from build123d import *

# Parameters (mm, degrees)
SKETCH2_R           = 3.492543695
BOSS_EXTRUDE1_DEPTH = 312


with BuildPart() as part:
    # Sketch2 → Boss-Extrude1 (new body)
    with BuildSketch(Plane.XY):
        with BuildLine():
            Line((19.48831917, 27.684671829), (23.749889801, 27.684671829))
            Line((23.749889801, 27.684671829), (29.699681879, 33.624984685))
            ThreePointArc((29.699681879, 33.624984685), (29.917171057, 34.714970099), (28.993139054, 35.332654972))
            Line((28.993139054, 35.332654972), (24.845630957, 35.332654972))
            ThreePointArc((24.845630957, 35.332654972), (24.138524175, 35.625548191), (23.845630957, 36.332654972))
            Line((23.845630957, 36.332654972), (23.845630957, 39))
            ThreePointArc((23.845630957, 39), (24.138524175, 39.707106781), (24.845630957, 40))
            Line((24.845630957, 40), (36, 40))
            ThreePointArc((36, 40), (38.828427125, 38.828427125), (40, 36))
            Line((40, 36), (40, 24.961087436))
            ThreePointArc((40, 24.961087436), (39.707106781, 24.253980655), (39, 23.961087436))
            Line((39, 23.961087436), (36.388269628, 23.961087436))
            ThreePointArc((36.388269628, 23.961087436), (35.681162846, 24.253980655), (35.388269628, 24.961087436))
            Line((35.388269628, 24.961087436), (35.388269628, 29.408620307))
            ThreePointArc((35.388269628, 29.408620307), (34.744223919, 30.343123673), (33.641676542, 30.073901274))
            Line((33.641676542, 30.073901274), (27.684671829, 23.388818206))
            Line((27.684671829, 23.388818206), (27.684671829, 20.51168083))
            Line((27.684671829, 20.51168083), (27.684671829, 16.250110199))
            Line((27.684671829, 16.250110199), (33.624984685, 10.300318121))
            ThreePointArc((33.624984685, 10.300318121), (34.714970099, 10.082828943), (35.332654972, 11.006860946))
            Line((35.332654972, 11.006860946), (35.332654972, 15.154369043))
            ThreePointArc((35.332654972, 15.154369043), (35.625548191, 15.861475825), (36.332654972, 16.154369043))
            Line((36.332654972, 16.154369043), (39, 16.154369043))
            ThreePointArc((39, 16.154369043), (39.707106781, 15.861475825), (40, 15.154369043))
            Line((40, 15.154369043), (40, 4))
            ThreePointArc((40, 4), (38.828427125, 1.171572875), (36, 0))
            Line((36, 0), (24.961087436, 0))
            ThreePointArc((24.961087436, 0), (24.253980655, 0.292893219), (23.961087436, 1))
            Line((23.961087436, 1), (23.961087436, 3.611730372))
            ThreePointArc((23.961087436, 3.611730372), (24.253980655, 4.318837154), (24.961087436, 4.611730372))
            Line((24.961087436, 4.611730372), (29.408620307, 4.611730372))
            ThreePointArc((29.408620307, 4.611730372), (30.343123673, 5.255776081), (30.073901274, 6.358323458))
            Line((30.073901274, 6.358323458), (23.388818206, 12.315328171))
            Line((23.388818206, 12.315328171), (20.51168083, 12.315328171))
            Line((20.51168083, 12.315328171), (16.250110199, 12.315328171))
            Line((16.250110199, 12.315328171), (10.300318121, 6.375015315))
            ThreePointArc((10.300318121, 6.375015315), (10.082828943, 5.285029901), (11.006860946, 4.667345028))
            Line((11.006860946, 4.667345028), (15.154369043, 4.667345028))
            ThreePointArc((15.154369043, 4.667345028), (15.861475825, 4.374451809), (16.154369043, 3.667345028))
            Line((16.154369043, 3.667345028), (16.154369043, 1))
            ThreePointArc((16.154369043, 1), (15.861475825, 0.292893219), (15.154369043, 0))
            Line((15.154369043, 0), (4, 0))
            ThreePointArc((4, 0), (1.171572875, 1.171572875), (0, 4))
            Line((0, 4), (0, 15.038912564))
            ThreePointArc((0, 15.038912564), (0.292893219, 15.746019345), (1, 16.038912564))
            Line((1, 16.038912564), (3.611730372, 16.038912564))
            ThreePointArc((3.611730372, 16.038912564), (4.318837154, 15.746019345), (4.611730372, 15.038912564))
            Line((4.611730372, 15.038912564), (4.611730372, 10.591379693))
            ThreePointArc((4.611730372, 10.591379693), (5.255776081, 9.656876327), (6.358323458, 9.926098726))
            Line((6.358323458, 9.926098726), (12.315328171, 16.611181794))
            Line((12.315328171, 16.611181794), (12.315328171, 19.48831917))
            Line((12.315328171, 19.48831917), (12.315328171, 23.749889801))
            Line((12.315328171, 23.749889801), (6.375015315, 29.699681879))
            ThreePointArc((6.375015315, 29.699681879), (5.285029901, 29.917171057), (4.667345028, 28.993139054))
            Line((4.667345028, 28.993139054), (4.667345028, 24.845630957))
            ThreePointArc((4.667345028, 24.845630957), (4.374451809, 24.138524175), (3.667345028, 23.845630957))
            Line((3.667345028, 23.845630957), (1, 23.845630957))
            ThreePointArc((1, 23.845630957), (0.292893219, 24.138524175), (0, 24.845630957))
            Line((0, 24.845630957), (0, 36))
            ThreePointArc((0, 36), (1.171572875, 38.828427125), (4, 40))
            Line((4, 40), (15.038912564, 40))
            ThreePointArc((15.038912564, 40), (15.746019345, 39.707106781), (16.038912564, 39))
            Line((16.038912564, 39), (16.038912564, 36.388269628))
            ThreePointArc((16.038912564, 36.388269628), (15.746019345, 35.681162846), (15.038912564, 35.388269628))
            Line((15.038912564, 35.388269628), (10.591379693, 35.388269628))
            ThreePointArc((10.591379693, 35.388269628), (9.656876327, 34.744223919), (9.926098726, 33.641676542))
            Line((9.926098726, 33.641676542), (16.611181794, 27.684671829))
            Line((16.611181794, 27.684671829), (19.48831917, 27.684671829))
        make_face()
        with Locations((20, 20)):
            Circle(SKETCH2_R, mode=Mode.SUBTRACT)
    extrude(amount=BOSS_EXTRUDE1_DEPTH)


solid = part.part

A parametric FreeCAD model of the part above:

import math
import FreeCAD as App
import Part
import Sketcher
from FreeCAD import Vector

doc = App.newDocument("Part")
body = doc.addObject("PartDesign::Body", "Body")

# Sketch on XY plane
sketch1 = body.newObject("Sketcher::SketchObject", "Sketch")
sketch1.AttachmentSupport = (doc.getObject("XY_Plane"), [""])
sketch1.MapMode = "FlatFace"
sketch1.addGeometry([
    Part.LineSegment(Vector(29.7, 33.6, 0), Vector(23.7, 27.7, 0)),  # 0
    Part.LineSegment(Vector(23.7, 27.7, 0), Vector(16.6, 27.7, 0)),  # 1
    Part.LineSegment(Vector(16.6, 27.7, 0), Vector(9.9, 33.6, 0)),  # 2
    Part.ArcOfCircle(Part.Circle(Vector(10.6, 34.4, 0), Vector(0, 0, 1), 1), math.radians(90), math.radians(228)),  # 3
    Part.LineSegment(Vector(10.6, 35.4, 0), Vector(15, 35.4, 0)),  # 4
    Part.ArcOfCircle(Part.Circle(Vector(15, 36.4, 0), Vector(0, 0, 1), 1), math.radians(-90), math.radians(0)),  # 5
    Part.LineSegment(Vector(16, 36.4, 0), Vector(16, 39, 0)),  # 6
    Part.ArcOfCircle(Part.Circle(Vector(15, 39, 0), Vector(0, 0, 1), 1), math.radians(0), math.radians(90)),  # 7
    Part.LineSegment(Vector(15, 40, 0), Vector(4, 40, 0)),  # 8
    Part.ArcOfCircle(Part.Circle(Vector(4, 36, 0), Vector(0, 0, 1), 4), math.radians(90), math.radians(180)),  # 9
    Part.LineSegment(Vector(0, 36, 0), Vector(0, 24.8, 0)),  # 10
    Part.ArcOfCircle(Part.Circle(Vector(1, 24.8, 0), Vector(0, 0, 1), 1), math.radians(180), math.radians(270)),  # 11
    Part.LineSegment(Vector(1, 23.8, 0), Vector(3.7, 23.8, 0)),  # 12
    Part.ArcOfCircle(Part.Circle(Vector(3.7, 24.8, 0), Vector(0, 0, 1), 1), math.radians(-90), math.radians(0)),  # 13
    Part.LineSegment(Vector(4.7, 24.8, 0), Vector(4.7, 29, 0)),  # 14
    Part.ArcOfCircle(Part.Circle(Vector(5.7, 29, 0), Vector(0, 0, 1), 1), math.radians(45), math.radians(180)),  # 15
    Part.LineSegment(Vector(6.4, 29.7, 0), Vector(12.3, 23.7, 0)),  # 16
    Part.LineSegment(Vector(12.3, 23.7, 0), Vector(12.3, 16.6, 0)),  # 17
    Part.LineSegment(Vector(12.3, 16.6, 0), Vector(6.4, 9.9, 0)),  # 18
    Part.ArcOfCircle(Part.Circle(Vector(5.6, 10.6, 0), Vector(0, 0, 1), 1), math.radians(-180), math.radians(-42)),  # 19
    Part.LineSegment(Vector(4.6, 10.6, 0), Vector(4.6, 15, 0)),  # 20
    Part.ArcOfCircle(Part.Circle(Vector(3.6, 15, 0), Vector(0, 0, 1), 1), math.radians(0), math.radians(90)),  # 21
    Part.LineSegment(Vector(3.6, 16, 0), Vector(1, 16, 0)),  # 22
    Part.ArcOfCircle(Part.Circle(Vector(1, 15, 0), Vector(0, 0, 1), 1), math.radians(90), math.radians(180)),  # 23
    Part.LineSegment(Vector(0, 15, 0), Vector(0, 4, 0)),  # 24
    Part.ArcOfCircle(Part.Circle(Vector(4, 4, 0), Vector(0, 0, 1), 4), math.radians(180), math.radians(270)),  # 25
    Part.LineSegment(Vector(4, 0, 0), Vector(15.2, 0, 0)),  # 26
    Part.ArcOfCircle(Part.Circle(Vector(15.2, 1, 0), Vector(0, 0, 1), 1), math.radians(-90), math.radians(0)),  # 27
    Part.LineSegment(Vector(16.2, 1, 0), Vector(16.2, 3.7, 0)),  # 28
    Part.ArcOfCircle(Part.Circle(Vector(15.2, 3.7, 0), Vector(0, 0, 1), 1), math.radians(0), math.radians(90)),  # 29
    Part.LineSegment(Vector(15.2, 4.7, 0), Vector(11, 4.7, 0)),  # 30
    Part.ArcOfCircle(Part.Circle(Vector(11, 5.7, 0), Vector(0, 0, 1), 1), math.radians(135), math.radians(270)),  # 31
    Part.LineSegment(Vector(10.3, 6.4, 0), Vector(16.3, 12.3, 0)),  # 32
    Part.LineSegment(Vector(16.3, 12.3, 0), Vector(23.4, 12.3, 0)),  # 33
    Part.LineSegment(Vector(23.4, 12.3, 0), Vector(30.1, 6.4, 0)),  # 34
    Part.ArcOfCircle(Part.Circle(Vector(29.4, 5.6, 0), Vector(0, 0, 1), 1), math.radians(-90), math.radians(48)),  # 35
    Part.LineSegment(Vector(29.4, 4.6, 0), Vector(25, 4.6, 0)),  # 36
    Part.ArcOfCircle(Part.Circle(Vector(25, 3.6, 0), Vector(0, 0, 1), 1), math.radians(90), math.radians(180)),  # 37
    Part.LineSegment(Vector(24, 3.6, 0), Vector(24, 1, 0)),  # 38
    Part.ArcOfCircle(Part.Circle(Vector(25, 1, 0), Vector(0, 0, 1), 1), math.radians(-180), math.radians(-90)),  # 39
    Part.LineSegment(Vector(25, 0, 0), Vector(36, 0, 0)),  # 40
    Part.ArcOfCircle(Part.Circle(Vector(36, 4, 0), Vector(0, 0, 1), 4), math.radians(-90), math.radians(0)),  # 41
    Part.LineSegment(Vector(40, 4, 0), Vector(40, 15.2, 0)),  # 42
    Part.ArcOfCircle(Part.Circle(Vector(39, 15.2, 0), Vector(0, 0, 1), 1), math.radians(0), math.radians(90)),  # 43
    Part.LineSegment(Vector(39, 16.2, 0), Vector(36.3, 16.2, 0)),  # 44
    Part.ArcOfCircle(Part.Circle(Vector(36.3, 15.2, 0), Vector(0, 0, 1), 1), math.radians(90), math.radians(180)),  # 45
    Part.LineSegment(Vector(35.3, 15.2, 0), Vector(35.3, 11, 0)),  # 46
    Part.ArcOfCircle(Part.Circle(Vector(34.3, 11, 0), Vector(0, 0, 1), 1), math.radians(-135), math.radians(0)),  # 47
    Part.LineSegment(Vector(33.6, 10.3, 0), Vector(27.7, 16.3, 0)),  # 48
    Part.LineSegment(Vector(27.7, 16.3, 0), Vector(27.7, 23.4, 0)),  # 49
    Part.LineSegment(Vector(27.7, 23.4, 0), Vector(33.6, 30.1, 0)),  # 50
    Part.ArcOfCircle(Part.Circle(Vector(34.4, 29.4, 0), Vector(0, 0, 1), 1), math.radians(0), math.radians(138)),  # 51
    Part.LineSegment(Vector(35.4, 29.4, 0), Vector(35.4, 25, 0)),  # 52
    Part.ArcOfCircle(Part.Circle(Vector(36.4, 25, 0), Vector(0, 0, 1), 1), math.radians(180), math.radians(270)),  # 53
    Part.LineSegment(Vector(36.4, 24, 0), Vector(39, 24, 0)),  # 54
    Part.ArcOfCircle(Part.Circle(Vector(39, 25, 0), Vector(0, 0, 1), 1), math.radians(-90), math.radians(0)),  # 55
    Part.LineSegment(Vector(40, 25, 0), Vector(40, 36, 0)),  # 56
    Part.ArcOfCircle(Part.Circle(Vector(36, 36, 0), Vector(0, 0, 1), 4), math.radians(0), math.radians(90)),  # 57
    Part.LineSegment(Vector(36, 40, 0), Vector(24.8, 40, 0)),  # 58
    Part.ArcOfCircle(Part.Circle(Vector(24.8, 39, 0), Vector(0, 0, 1), 1), math.radians(90), math.radians(180)),  # 59
    Part.LineSegment(Vector(23.8, 39, 0), Vector(23.8, 36.3, 0)),  # 60
    Part.ArcOfCircle(Part.Circle(Vector(24.8, 36.3, 0), Vector(0, 0, 1), 1), math.radians(180), math.radians(270)),  # 61
    Part.LineSegment(Vector(24.8, 35.3, 0), Vector(29, 35.3, 0)),  # 62
    Part.ArcOfCircle(Part.Circle(Vector(29, 34.3, 0), Vector(0, 0, 1), 1), math.radians(-45), math.radians(90)),  # 63
    Part.Circle(Vector(20, 20, 0), Vector(0, 0, 1), 3.5),  # 64
], False)
sketch1.addConstraint([
    Sketcher.Constraint("Coincident", 0, 2, 1, 1),
    Sketcher.Constraint("Coincident", 1, 2, 2, 1),
    Sketcher.Constraint("Tangent", 2, 2, 3, 2),
    Sketcher.Constraint("Tangent", 3, 1, 4, 1),
    Sketcher.Constraint("Tangent", 4, 2, 5, 1),
    Sketcher.Constraint("Tangent", 5, 2, 6, 1),
    Sketcher.Constraint("Tangent", 6, 2, 7, 1),
    Sketcher.Constraint("Tangent", 7, 2, 8, 1),
    Sketcher.Constraint("Tangent", 8, 2, 9, 1),
    Sketcher.Constraint("Tangent", 9, 2, 10, 1),
    Sketcher.Constraint("Tangent", 10, 2, 11, 1),
    Sketcher.Constraint("Tangent", 11, 2, 12, 1),
    Sketcher.Constraint("Tangent", 12, 2, 13, 1),
    Sketcher.Constraint("Tangent", 13, 2, 14, 1),
    Sketcher.Constraint("Tangent", 14, 2, 15, 2),
    Sketcher.Constraint("Tangent", 15, 1, 16, 1),
    Sketcher.Constraint("Coincident", 16, 2, 17, 1),
    Sketcher.Constraint("Coincident", 17, 2, 18, 1),
    Sketcher.Constraint("Tangent", 18, 2, 19, 2),
    Sketcher.Constraint("Tangent", 19, 1, 20, 1),
    Sketcher.Constraint("Tangent", 20, 2, 21, 1),
    Sketcher.Constraint("Tangent", 21, 2, 22, 1),
    Sketcher.Constraint("Tangent", 22, 2, 23, 1),
    Sketcher.Constraint("Tangent", 23, 2, 24, 1),
    Sketcher.Constraint("Tangent", 24, 2, 25, 1),
    Sketcher.Constraint("Tangent", 25, 2, 26, 1),
    Sketcher.Constraint("Tangent", 26, 2, 27, 1),
    Sketcher.Constraint("Tangent", 27, 2, 28, 1),
    Sketcher.Constraint("Tangent", 28, 2, 29, 1),
    Sketcher.Constraint("Tangent", 29, 2, 30, 1),
    Sketcher.Constraint("Tangent", 30, 2, 31, 2),
    Sketcher.Constraint("Tangent", 31, 1, 32, 1),
    Sketcher.Constraint("Coincident", 32, 2, 33, 1),
    Sketcher.Constraint("Coincident", 33, 2, 34, 1),
    Sketcher.Constraint("Tangent", 34, 2, 35, 2),
    Sketcher.Constraint("Tangent", 35, 1, 36, 1),
    Sketcher.Constraint("Tangent", 36, 2, 37, 1),
    Sketcher.Constraint("Tangent", 37, 2, 38, 1),
    Sketcher.Constraint("Tangent", 38, 2, 39, 1),
    Sketcher.Constraint("Tangent", 39, 2, 40, 1),
    Sketcher.Constraint("Tangent", 40, 2, 41, 1),
    Sketcher.Constraint("Tangent", 41, 2, 42, 1),
    Sketcher.Constraint("Tangent", 42, 2, 43, 1),
    Sketcher.Constraint("Tangent", 43, 2, 44, 1),
    Sketcher.Constraint("Tangent", 44, 2, 45, 1),
    Sketcher.Constraint("Tangent", 45, 2, 46, 1),
    Sketcher.Constraint("Tangent", 46, 2, 47, 2),
    Sketcher.Constraint("Tangent", 47, 1, 48, 1),
    Sketcher.Constraint("Coincident", 48, 2, 49, 1),
    Sketcher.Constraint("Coincident", 49, 2, 50, 1),
    Sketcher.Constraint("Tangent", 50, 2, 51, 2),
    Sketcher.Constraint("Tangent", 51, 1, 52, 1),
    Sketcher.Constraint("Tangent", 52, 2, 53, 1),
    Sketcher.Constraint("Tangent", 53, 2, 54, 1),
    Sketcher.Constraint("Tangent", 54, 2, 55, 1),
    Sketcher.Constraint("Tangent", 55, 2, 56, 1),
    Sketcher.Constraint("Tangent", 56, 2, 57, 1),
    Sketcher.Constraint("Tangent", 57, 2, 58, 1),
    Sketcher.Constraint("Tangent", 58, 2, 59, 1),
    Sketcher.Constraint("Tangent", 59, 2, 60, 1),
    Sketcher.Constraint("Tangent", 60, 2, 61, 1),
    Sketcher.Constraint("Tangent", 61, 2, 62, 1),
    Sketcher.Constraint("Tangent", 62, 2, 63, 2),
    Sketcher.Constraint("Tangent", 63, 1, 0, 1),
    Sketcher.Constraint("Horizontal", 1),
    Sketcher.Constraint("Horizontal", 4),
    Sketcher.Constraint("Vertical", 6),
    Sketcher.Constraint("Horizontal", 8),
    Sketcher.Constraint("Vertical", 10),
    Sketcher.Constraint("Horizontal", 12),
    Sketcher.Constraint("Vertical", 14),
    Sketcher.Constraint("Vertical", 17),
    Sketcher.Constraint("Vertical", 20),
    Sketcher.Constraint("Horizontal", 22),
    Sketcher.Constraint("Vertical", 24),
    Sketcher.Constraint("Horizontal", 26),
    Sketcher.Constraint("Vertical", 28),
    Sketcher.Constraint("Horizontal", 30),
    Sketcher.Constraint("Horizontal", 33),
    Sketcher.Constraint("Horizontal", 36),
    Sketcher.Constraint("Vertical", 38),
    Sketcher.Constraint("Horizontal", 40),
    Sketcher.Constraint("Vertical", 42),
    Sketcher.Constraint("Horizontal", 44),
    Sketcher.Constraint("Vertical", 46),
    Sketcher.Constraint("Vertical", 49),
    Sketcher.Constraint("Vertical", 52),
    Sketcher.Constraint("Horizontal", 54),
    Sketcher.Constraint("Vertical", 56),
    Sketcher.Constraint("Horizontal", 58),
    Sketcher.Constraint("Vertical", 60),
    Sketcher.Constraint("Horizontal", 62),
    Sketcher.Constraint("Equal", 3, 5),
    Sketcher.Constraint("Equal", 5, 7),
    Sketcher.Constraint("Equal", 7, 11),
    Sketcher.Constraint("Equal", 11, 13),
    Sketcher.Constraint("Equal", 13, 15),
    Sketcher.Constraint("Equal", 15, 19),
    Sketcher.Constraint("Equal", 19, 21),
    Sketcher.Constraint("Equal", 21, 23),
    Sketcher.Constraint("Equal", 9, 25),
    Sketcher.Constraint("Equal", 23, 27),
    Sketcher.Constraint("Equal", 27, 29),
    Sketcher.Constraint("Equal", 29, 31),
    Sketcher.Constraint("Equal", 31, 35),
    Sketcher.Constraint("Equal", 35, 37),
    Sketcher.Constraint("Equal", 37, 39),
    Sketcher.Constraint("Equal", 25, 41),
    Sketcher.Constraint("Equal", 39, 43),
    Sketcher.Constraint("Equal", 43, 45),
    Sketcher.Constraint("Equal", 45, 47),
    Sketcher.Constraint("Equal", 47, 51),
    Sketcher.Constraint("Equal", 51, 53),
    Sketcher.Constraint("Equal", 53, 55),
    Sketcher.Constraint("Equal", 41, 57),
    Sketcher.Constraint("Equal", 55, 59),
    Sketcher.Constraint("Equal", 59, 61),
    Sketcher.Constraint("Equal", 61, 63),
    Sketcher.Constraint("PointOnObject", 9, 2, -2),
    Sketcher.Constraint("PointOnObject", 23, 2, -2),
    Sketcher.Constraint("PointOnObject", 25, 2, -1),
    Sketcher.Constraint("PointOnObject", 39, 2, -1),
    Sketcher.Constraint("Perpendicular", 0, 16),
    Sketcher.Constraint("Perpendicular", 2, 18),
    Sketcher.Constraint("Perpendicular", 16, 32),
    Sketcher.Constraint("Perpendicular", 18, 34),
    Sketcher.Constraint("Perpendicular", 32, 48),
    Sketcher.Constraint("Perpendicular", 34, 50),
    Sketcher.Constraint("Horizontal", 9, 3, 57, 3),
    Sketcher.Constraint("Vertical", 43, 3, 55, 3),
    Sketcher.Constraint("Equal", 1, 33),
    Sketcher.Constraint("Equal", 4, 36),
    Sketcher.Constraint("Equal", 8, 40),
    Sketcher.Constraint("Equal", 12, 44),
    Sketcher.Constraint("Equal", 22, 54),
    Sketcher.Constraint("Equal", 26, 58),
    Sketcher.Constraint("Equal", 30, 62),
    Sketcher.Constraint("Equal", 54, 6),
    Sketcher.Constraint("Equal", 58, 10),
    Sketcher.Constraint("Equal", 62, 14),
    Sketcher.Constraint("Equal", 33, 17),
    Sketcher.Constraint("Equal", 36, 20),
    Sketcher.Constraint("Equal", 40, 24),
    Sketcher.Constraint("Equal", 44, 28),
    Sketcher.Constraint("Equal", 6, 38),
    Sketcher.Constraint("Equal", 10, 42),
    Sketcher.Constraint("Equal", 14, 46),
    Sketcher.Constraint("Equal", 17, 49),
    Sketcher.Constraint("Equal", 20, 52),
    Sketcher.Constraint("Equal", 24, 56),
    Sketcher.Constraint("Equal", 28, 60),
    Sketcher.Constraint("Equal", 0, 16),
    Sketcher.Constraint("Radius", 3, 1.0),
    Sketcher.Constraint("Radius", 9, 4.0),
    Sketcher.Constraint("DistanceY", -1, 1, 7, 3, 39.0),
    Sketcher.Constraint("DistanceX", -1, 1, 64, 3, 20.0),
    Sketcher.Constraint("DistanceY", -1, 1, 64, 3, 20.0),
    Sketcher.Constraint("Diameter", 64, 6.985087),
    Sketcher.Constraint("DistanceX", 1, 2, 1, 1, 7.138708),
    Sketcher.Constraint("DistanceX", 22, 2, 22, 1, 2.61173),
    Sketcher.Constraint("DistanceX", 26, 1, 26, 2, 11.154369),
    Sketcher.Constraint("DistanceX", 30, 2, 30, 1, 4.147508),
    Sketcher.Constraint("DistanceX", -1, 1, 2, 2, 9.926099),
    Sketcher.Constraint("Distance", 2, 8.954119),
    Sketcher.Constraint("DistanceX", 4, 1, 4, 2, 4.447533),
    Sketcher.Constraint("DistanceX", 8, 2, 8, 1, 11.038913),
    Sketcher.Constraint("DistanceX", 12, 1, 12, 2, 2.667345),
])
pad1 = body.newObject("PartDesign::Pad", "Pad")
pad1.Profile = sketch1
pad1.Length = 312

doc.recompute()
